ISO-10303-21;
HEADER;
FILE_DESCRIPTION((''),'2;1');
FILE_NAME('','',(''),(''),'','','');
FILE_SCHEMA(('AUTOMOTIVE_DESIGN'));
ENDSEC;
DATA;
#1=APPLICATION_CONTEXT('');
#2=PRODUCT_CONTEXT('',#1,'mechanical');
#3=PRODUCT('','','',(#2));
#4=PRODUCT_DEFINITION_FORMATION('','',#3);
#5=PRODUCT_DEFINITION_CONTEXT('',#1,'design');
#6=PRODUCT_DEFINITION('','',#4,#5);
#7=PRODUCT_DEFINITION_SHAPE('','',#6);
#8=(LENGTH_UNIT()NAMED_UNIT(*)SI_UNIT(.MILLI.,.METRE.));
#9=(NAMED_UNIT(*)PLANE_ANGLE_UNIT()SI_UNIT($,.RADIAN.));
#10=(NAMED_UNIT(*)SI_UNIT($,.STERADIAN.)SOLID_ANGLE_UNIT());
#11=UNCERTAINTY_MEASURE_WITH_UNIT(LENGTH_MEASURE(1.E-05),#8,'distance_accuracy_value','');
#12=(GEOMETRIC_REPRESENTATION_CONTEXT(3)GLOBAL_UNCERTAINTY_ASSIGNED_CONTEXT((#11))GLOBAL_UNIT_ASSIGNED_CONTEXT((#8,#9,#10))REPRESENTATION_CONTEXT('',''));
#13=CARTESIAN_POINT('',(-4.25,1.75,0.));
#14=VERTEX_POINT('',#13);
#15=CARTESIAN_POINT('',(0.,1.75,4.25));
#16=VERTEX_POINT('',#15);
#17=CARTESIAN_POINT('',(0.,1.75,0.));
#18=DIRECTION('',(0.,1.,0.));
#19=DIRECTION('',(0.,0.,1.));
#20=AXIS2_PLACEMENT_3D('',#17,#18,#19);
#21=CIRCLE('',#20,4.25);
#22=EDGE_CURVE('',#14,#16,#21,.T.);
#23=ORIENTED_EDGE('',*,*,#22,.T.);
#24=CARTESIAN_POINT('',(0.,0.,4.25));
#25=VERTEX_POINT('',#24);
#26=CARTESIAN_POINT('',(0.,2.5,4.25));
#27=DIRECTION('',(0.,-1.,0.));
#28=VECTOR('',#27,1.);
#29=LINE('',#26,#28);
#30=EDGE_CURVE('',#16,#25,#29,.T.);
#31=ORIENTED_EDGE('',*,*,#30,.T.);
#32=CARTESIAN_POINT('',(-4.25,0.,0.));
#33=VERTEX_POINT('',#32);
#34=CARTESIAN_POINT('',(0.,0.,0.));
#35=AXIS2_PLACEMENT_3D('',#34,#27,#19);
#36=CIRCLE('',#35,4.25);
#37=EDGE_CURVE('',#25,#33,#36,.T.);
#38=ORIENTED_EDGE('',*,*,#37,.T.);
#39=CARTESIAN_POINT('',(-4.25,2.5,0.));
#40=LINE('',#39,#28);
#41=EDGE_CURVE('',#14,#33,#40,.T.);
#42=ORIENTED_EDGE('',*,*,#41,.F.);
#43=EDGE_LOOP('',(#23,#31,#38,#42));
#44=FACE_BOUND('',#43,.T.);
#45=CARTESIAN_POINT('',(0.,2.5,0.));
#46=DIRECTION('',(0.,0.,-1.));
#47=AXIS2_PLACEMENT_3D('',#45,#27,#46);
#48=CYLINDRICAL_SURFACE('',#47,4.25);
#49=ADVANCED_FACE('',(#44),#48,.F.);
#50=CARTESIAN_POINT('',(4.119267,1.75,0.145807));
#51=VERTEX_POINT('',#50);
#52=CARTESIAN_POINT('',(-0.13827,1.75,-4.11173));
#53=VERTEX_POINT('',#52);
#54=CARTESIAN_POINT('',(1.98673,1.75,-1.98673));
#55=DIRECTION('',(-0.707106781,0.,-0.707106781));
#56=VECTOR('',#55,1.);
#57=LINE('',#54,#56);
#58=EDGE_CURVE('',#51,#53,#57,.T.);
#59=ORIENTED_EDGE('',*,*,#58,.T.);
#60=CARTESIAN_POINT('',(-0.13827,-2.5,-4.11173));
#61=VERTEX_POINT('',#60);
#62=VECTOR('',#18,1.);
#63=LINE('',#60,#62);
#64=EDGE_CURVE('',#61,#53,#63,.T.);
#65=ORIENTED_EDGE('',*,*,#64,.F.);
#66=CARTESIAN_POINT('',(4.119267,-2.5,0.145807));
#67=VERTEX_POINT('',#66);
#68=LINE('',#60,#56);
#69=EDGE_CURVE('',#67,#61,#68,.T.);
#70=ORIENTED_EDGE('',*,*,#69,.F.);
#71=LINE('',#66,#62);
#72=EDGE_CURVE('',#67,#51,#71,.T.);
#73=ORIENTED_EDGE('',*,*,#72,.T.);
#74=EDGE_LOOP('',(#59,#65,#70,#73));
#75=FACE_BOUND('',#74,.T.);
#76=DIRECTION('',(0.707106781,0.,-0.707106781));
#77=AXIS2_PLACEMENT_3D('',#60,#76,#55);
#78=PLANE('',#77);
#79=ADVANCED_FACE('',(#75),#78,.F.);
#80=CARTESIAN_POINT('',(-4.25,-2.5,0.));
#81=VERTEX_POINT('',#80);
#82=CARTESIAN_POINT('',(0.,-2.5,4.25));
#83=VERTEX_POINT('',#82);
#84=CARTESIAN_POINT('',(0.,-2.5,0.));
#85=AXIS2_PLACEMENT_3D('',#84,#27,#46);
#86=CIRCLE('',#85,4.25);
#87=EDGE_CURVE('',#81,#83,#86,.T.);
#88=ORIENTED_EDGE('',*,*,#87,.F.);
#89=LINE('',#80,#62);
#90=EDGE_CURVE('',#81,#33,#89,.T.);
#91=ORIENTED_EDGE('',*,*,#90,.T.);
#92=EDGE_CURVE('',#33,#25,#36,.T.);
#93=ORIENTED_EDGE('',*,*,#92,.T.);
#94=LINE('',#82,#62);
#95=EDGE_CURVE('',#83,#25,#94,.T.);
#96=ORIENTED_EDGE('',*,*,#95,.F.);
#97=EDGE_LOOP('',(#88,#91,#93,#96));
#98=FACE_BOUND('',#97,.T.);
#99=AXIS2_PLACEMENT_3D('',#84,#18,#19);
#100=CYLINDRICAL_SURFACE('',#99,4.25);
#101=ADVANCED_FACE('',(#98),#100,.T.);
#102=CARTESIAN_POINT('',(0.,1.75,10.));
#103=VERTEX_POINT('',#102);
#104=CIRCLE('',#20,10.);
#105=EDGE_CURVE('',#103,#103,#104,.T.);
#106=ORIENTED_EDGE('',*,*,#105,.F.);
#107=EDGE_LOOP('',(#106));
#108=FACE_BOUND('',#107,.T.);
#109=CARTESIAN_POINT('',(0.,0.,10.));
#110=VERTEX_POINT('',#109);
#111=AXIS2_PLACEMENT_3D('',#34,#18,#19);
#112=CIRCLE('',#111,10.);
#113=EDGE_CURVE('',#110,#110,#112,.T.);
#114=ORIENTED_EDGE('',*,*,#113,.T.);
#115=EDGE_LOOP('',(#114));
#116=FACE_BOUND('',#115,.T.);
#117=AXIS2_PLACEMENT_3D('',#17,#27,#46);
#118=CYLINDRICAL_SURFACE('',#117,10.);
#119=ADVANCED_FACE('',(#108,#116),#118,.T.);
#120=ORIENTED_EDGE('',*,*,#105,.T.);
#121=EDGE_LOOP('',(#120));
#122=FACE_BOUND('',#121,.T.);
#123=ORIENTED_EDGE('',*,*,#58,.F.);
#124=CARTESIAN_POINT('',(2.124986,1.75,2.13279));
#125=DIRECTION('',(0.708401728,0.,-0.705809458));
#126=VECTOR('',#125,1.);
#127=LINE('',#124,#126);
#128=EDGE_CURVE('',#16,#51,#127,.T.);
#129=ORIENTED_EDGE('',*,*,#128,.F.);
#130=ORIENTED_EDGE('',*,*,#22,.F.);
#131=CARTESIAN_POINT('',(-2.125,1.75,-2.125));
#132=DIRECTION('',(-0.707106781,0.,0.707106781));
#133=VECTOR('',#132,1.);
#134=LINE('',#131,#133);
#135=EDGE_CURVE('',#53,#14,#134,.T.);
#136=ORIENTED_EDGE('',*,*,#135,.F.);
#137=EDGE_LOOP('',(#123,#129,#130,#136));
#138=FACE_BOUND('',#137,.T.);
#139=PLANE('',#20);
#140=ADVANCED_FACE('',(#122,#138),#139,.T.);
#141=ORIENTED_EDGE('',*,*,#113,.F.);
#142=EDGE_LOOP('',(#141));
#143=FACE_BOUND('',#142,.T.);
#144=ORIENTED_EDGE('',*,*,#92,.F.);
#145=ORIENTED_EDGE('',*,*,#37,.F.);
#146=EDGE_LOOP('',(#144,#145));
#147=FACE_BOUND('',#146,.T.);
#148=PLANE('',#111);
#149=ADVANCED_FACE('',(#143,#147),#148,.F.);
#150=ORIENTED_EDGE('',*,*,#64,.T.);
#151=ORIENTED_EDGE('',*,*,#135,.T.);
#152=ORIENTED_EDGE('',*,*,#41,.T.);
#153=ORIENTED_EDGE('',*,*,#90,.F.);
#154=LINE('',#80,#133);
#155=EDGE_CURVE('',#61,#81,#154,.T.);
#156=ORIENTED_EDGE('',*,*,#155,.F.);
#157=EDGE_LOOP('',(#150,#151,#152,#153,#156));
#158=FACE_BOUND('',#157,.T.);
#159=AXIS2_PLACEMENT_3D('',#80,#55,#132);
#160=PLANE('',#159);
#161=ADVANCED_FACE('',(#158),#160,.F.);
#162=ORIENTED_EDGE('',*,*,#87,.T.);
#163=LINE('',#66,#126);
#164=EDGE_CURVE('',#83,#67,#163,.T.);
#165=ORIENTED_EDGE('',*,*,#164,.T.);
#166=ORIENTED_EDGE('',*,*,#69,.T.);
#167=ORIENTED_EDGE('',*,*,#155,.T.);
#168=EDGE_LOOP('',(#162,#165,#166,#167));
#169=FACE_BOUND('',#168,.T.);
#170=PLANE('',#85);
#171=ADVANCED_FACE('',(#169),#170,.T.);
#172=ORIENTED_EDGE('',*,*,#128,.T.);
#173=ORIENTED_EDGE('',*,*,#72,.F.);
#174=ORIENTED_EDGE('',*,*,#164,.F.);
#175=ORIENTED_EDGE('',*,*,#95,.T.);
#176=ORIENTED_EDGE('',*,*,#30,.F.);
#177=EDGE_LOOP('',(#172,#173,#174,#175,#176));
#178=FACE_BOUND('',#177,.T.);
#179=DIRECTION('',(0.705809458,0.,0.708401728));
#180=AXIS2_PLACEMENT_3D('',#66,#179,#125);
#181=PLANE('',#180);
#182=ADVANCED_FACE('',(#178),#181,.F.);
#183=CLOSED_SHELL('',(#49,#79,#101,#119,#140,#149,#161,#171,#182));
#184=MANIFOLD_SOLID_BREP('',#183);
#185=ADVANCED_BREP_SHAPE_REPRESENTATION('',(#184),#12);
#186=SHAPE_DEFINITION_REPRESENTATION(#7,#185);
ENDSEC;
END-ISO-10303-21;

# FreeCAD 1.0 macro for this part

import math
import FreeCAD as App
import Part
import Sketcher
Q = App.Units.Quantity

doc = App.newDocument("Part")
body = doc.addObject("PartDesign::Body", "Body")

# Sketch on XZ plane
sketch1 = doc.addObject("Sketcher::SketchObject", "Sketch")
body.addObject(sketch1)
sketch1.AttachmentSupport = (doc.XZ_Plane, [""])
sketch1.MapMode = "FlatFace"
sketch1.addGeometry(Part.Circle(App.Vector(0, 0, 0), App.Vector(0, 0, 1), 10), False)
sketch1.addConstraint(Sketcher.Constraint("Coincident", 0, 3, -1, 1))
sketch1.addConstraint(Sketcher.Constraint("Diameter", 0, 20.0))
pad1 = doc.addObject("PartDesign::Pad", "Pad")
body.addObject(pad1)
pad1.Profile = sketch1
pad1.Length = 1.75
pad1.Reversed = True

# Sketch on XZ plane
sketch2 = doc.addObject("Sketcher::SketchObject", "Sketch001")
body.addObject(sketch2)
sketch2.AttachmentSupport = (doc.XZ_Plane, [""])
sketch2.MapMode = "FlatFace"
sketch2.addGeometry(Part.LineSegment(App.Vector(-0.13827, -4.11173, 0), App.Vector(-4.25, 0, 0)), False)
sketch2.addGeometry(Part.ArcOfCircle(Part.Circle(App.Vector(0, 0, 0), App.Vector(0, 0, 1), 4.25), math.radians(180), math.radians(270)), False)
sketch2.addGeometry(Part.ArcOfCircle(Part.Circle(App.Vector(0, 0, 0), App.Vector(0, 0, 1), 4.25), math.radians(-90), math.radians(90)), False)
sketch2.addGeometry(Part.LineSegment(App.Vector(0, 4.25, 0), App.Vector(4.119267, 0.145807, 0)), False)
sketch2.addGeometry(Part.LineSegment(App.Vector(4.119267, 0.145807, 0), App.Vector(-0.13827, -4.11173, 0)), False)
sketch2.addConstraint(Sketcher.Constraint("Coincident", 0, 2, 1, 1))
sketch2.addConstraint(Sketcher.Constraint("Tangent", 1, 2, 2, 1))
sketch2.addConstraint(Sketcher.Constraint("Coincident", 2, 2, 3, 1))
sketch2.addConstraint(Sketcher.Constraint("Coincident", 3, 2, 4, 1))
sketch2.addConstraint(Sketcher.Constraint("Coincident", 4, 2, 0, 1))
sketch2.addConstraint(Sketcher.Constraint("Coincident", 1, 3, -1, 1))
sketch2.addConstraint(Sketcher.Constraint("Equal", 1, 2))
sketch2.addConstraint(Sketcher.Constraint("PointOnObject", 0, 2, -1))
sketch2.addConstraint(Sketcher.Constraint("PointOnObject", 1, 2, -2))
sketch2.addConstraint(Sketcher.Constraint("PointOnObject", 2, 2, -2))
sketch2.addConstraint(Sketcher.Constraint("Perpendicular", 0, 4))
sketch2.addConstraint(Sketcher.Constraint("Angle", 0, Q("135 deg")))
sketch2.addConstraint(Sketcher.Constraint("Radius", 1, 4.25))
sketch2.addConstraint(Sketcher.Constraint("DistanceX", 4, 2, -1, 1, 0.13827))
sketch2.addConstraint(Sketcher.Constraint("Distance", 4, 6.021066))
pad2 = doc.addObject("PartDesign::Pad", "Pad001")
body.addObject(pad2)
pad2.Profile = sketch2
pad2.Length = 2.5

# Sketch on XZ plane
sketch3 = doc.addObject("Sketcher::SketchObject", "Sketch002")
body.addObject(sketch3)
sketch3.AttachmentSupport = (doc.XZ_Plane, [""])
sketch3.MapMode = "FlatFace"
sketch3.AttachmentOffset = App.Placement(App.Vector(0, 0, -2.5), App.Rotation())
sketch3.addGeometry(Part.LineSegment(App.Vector(-0.13827, -4.11173, 0), App.Vector(4.119267, 0.145807, 0)), False)
sketch3.addGeometry(Part.LineSegment(App.Vector(4.119267, 0.145807, 0), App.Vector(0, 4.25, 0)), False)
sketch3.addGeometry(Part.ArcOfCircle(Part.Circle(App.Vector(0, 0, 0), App.Vector(0, 0, 1), 4.25), math.radians(90), math.radians(180)), False)
sketch3.addGeometry(Part.LineSegment(App.Vector(-4.25, 0, 0), App.Vector(-0.13827, -4.11173, 0)), False)
sketch3.addConstraint(Sketcher.Constraint("Coincident", 0, 2, 1, 1))
sketch3.addConstraint(Sketcher.Constraint("Coincident", 1, 2, 2, 1))
sketch3.addConstraint(Sketcher.Constraint("Coincident", 2, 2, 3, 1))
sketch3.addConstraint(Sketcher.Constraint("Coincident", 3, 2, 0, 1))
sketch3.addConstraint(Sketcher.Constraint("Coincident", 2, 3, -1, 1))
sketch3.addConstraint(Sketcher.Constraint("PointOnObject", 1, 2, -2))
sketch3.addConstraint(Sketcher.Constraint("PointOnObject", 2, 2, -1))
sketch3.addConstraint(Sketcher.Constraint("Perpendicular", 0, 3))
sketch3.addConstraint(Sketcher.Constraint("Angle", 0, Q("45 deg")))
sketch3.addConstraint(Sketcher.Constraint("Radius", 2, 4.25))
sketch3.addConstraint(Sketcher.Constraint("DistanceX", 3, 2, -1, 1, 0.13827))
sketch3.addConstraint(Sketcher.Constraint("Distance", 0, 6.021066))
pocket1 = doc.addObject("PartDesign::Pocket", "Pocket")
body.addObject(pocket1)
pocket1.Profile = sketch3
pocket1.Length = 2.5
pocket1.Reversed = True

doc.recompute()
